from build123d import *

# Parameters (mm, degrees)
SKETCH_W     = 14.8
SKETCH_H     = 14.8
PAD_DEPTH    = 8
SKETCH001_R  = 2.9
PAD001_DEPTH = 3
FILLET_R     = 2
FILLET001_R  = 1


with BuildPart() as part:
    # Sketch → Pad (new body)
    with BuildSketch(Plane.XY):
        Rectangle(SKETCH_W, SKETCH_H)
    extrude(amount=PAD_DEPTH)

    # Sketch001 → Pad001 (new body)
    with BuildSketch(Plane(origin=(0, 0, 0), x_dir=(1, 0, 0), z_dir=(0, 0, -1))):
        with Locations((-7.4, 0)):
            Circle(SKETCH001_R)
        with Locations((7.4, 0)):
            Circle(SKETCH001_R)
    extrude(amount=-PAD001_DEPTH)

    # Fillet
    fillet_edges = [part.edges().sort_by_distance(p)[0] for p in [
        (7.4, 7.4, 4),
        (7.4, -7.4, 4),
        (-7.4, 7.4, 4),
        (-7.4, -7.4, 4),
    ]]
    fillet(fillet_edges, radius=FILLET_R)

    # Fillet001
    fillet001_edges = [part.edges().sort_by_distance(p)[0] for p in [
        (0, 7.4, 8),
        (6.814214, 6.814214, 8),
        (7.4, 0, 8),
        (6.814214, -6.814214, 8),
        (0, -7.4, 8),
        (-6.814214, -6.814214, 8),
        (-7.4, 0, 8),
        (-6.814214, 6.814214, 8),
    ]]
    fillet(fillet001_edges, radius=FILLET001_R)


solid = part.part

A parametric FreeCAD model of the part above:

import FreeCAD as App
import Part
import Sketcher
from FreeCAD import Vector


def edges_at(feature, points):
    """Names of the edges that pass closest to the given points."""
    edges = feature.Shape.Edges
    near = lambda p: min(range(len(edges)), key=lambda i: edges[i].distToShape(Part.Vertex(*p))[0])
    return sorted({f"Edge{near(p) + 1}" for p in points})

doc = App.newDocument("Part")
body = doc.addObject("PartDesign::Body", "Body")

# Sketch on XY plane
sketch1 = body.newObject("Sketcher::SketchObject", "Sketch")
sketch1.AttachmentSupport = (doc.getObject("XY_Plane"), [""])
sketch1.MapMode = "FlatFace"
sketch1.addGeometry([
    Part.LineSegment(Vector(-7.4, 7.4, 0), Vector(-7.4, -7.4, 0)),
    Part.LineSegment(Vector(-7.4, -7.4, 0), Vector(7.4, -7.4, 0)),
    Part.LineSegment(Vector(7.4, -7.4, 0), Vector(7.4, 7.4, 0)),
    Part.LineSegment(Vector(7.4, 7.4, 0), Vector(-7.4, 7.4, 0)),
], False)
sketch1.addConstraint([
    Sketcher.Constraint("Coincident", 0, 2, 1, 1),
    Sketcher.Constraint("Coincident", 1, 2, 2, 1),
    Sketcher.Constraint("Coincident", 2, 2, 3, 1),
    Sketcher.Constraint("Coincident", 3, 2, 0, 1),
    Sketcher.Constraint("Vertical", 0),
    Sketcher.Constraint("Horizontal", 1),
    Sketcher.Constraint("Vertical", 2),
    Sketcher.Constraint("Horizontal", 3),
    Sketcher.Constraint("Symmetric", 0, 2, 2, 2, -1, 1),
    Sketcher.Constraint("Equal", 3, 0),
    Sketcher.Constraint("DistanceX", 1, 1, 1, 2, 14.8),
])
pad1 = body.newObject("PartDesign::Pad", "Pad")
pad1.Profile = sketch1
pad1.Length = 8

# Sketch on XY plane
sketch2 = body.newObject("Sketcher::SketchObject", "Sketch001")
sketch2.AttachmentSupport = (doc.getObject("XY_Plane"), [""])
sketch2.MapMode = "FlatFace"
sketch2.addGeometry([
    Part.Circle(Vector(-7.4, 0, 0), Vector(0, 0, 1), 2.9),
    Part.Circle(Vector(7.4, 0, 0), Vector(0, 0, 1), 2.9),
], False)
sketch2.addConstraint([
    Sketcher.Constraint("Equal", 0, 1),
    Sketcher.Constraint("Symmetric", 0, 3, 1, 3, -1, 1),
    Sketcher.Constraint("PointOnObject", 0, 3, -1),
    Sketcher.Constraint("Diameter", 0, 5.8),
    Sketcher.Constraint("DistanceX", 0, 3, -1, 1, 7.4),
])
pad2 = body.newObject("PartDesign::Pad", "Pad001")
pad2.Profile = sketch2
pad2.Length = 3
doc.recompute()

fillet = body.newObject("PartDesign::Fillet", "Fillet")
fillet.Base = (pad2, edges_at(pad2, [
    (7.4, 7.4, 4),
    (7.4, -7.4, 4),
    (-7.4, 7.4, 4),
    (-7.4, -7.4, 4),
]))
fillet.Radius = 2
doc.recompute()

fillet2 = body.newObject("PartDesign::Fillet", "Fillet001")
fillet2.Base = (fillet, edges_at(fillet, [
    (0, 7.4, 8),
    (6.814, 6.814, 8),
    (7.4, 0, 8),
    (6.814, -6.814, 8),
    (0, -7.4, 8),
    (-6.814, -6.814, 8),
    (-7.4, 0, 8),
    (-6.814, 6.814, 8),
]))
fillet2.Radius = 1

doc.recompute()
